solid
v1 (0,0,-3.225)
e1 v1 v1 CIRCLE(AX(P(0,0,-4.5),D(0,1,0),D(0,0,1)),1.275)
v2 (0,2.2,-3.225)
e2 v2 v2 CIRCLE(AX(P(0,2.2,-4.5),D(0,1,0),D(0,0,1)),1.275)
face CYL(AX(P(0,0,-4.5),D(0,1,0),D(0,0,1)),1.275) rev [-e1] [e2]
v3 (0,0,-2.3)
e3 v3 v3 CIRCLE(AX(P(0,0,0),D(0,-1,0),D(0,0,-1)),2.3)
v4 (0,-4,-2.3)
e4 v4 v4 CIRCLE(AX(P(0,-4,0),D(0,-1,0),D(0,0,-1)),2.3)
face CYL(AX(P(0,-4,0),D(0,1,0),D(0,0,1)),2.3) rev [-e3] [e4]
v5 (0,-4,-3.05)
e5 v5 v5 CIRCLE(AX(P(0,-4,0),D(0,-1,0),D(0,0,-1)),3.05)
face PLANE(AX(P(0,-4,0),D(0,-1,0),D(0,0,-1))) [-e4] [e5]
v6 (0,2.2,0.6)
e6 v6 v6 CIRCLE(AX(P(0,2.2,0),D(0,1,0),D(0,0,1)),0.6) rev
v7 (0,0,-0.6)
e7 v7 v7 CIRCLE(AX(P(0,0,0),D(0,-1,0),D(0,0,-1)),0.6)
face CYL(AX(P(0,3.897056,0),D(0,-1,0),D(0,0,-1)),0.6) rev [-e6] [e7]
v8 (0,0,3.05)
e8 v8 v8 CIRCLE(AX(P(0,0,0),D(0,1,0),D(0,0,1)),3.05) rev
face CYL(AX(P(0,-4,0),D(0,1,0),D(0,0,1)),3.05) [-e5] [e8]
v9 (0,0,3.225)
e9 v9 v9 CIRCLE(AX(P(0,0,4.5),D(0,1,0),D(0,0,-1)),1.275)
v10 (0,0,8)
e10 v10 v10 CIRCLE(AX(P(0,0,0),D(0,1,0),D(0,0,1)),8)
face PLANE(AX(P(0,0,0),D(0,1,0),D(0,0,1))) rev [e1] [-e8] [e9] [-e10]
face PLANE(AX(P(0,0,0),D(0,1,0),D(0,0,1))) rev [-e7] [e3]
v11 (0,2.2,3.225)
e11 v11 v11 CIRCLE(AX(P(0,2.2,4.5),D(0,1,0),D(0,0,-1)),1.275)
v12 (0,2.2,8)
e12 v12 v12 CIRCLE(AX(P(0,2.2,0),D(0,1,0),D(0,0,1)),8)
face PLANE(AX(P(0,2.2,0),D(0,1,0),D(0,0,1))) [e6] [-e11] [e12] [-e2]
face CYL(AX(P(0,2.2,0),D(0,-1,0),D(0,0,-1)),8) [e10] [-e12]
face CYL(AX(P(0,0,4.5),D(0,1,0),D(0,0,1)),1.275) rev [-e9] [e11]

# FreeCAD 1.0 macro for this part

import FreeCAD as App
import Part
import Sketcher

V = App.Vector

doc = App.newDocument("Part")
params = doc.addObject("Spreadsheet::Sheet", "Params")
for row, (alias, value) in enumerate([
    ("sketch1_diameter", "16 mm"),
    ("pad1_length", "2.2 mm"),
    ("sketch2_diameter", "2.55 mm"),
    ("pocket1_length", "2.2 mm"),
    ("sketch3_diameter", "6.1 mm"),
    ("sketch3_diameter2", "4.6 mm"),
    ("pad2_length", "4 mm"),
    ("sketch4_diameter", "1.2 mm"),
    ("pocket2_length", "2.2 mm"),
], start=1):
    params.set(f"A{row}", alias)
    params.set(f"B{row}", "=" + value)
    params.setAlias(f"B{row}", alias)

body = doc.addObject("PartDesign::Body", "Body")

sketch1 = body.newObject("Sketcher::SketchObject", "Sketch")
sketch1.AttachmentSupport = (doc.getObject("XZ_Plane"), [""])
sketch1.MapMode = "FlatFace"
sketch1.addGeometry(Part.Circle(V(0, 0, 0), V(0, 0, 1), 8), False)
sketch1.addConstraint(Sketcher.Constraint("Coincident", 0, 3, -1, 1))
sketch1.addConstraint(Sketcher.Constraint("Diameter", 0, 16.0))
sketch1.setExpression("Constraints[1]", "Params.sketch1_diameter")
pad1 = body.newObject("PartDesign::Pad", "Pad")
pad1.Profile = sketch1
pad1.setExpression("Length", "Params.pad1_length")
pad1.Reversed = True

sketch2 = body.newObject("Sketcher::SketchObject", "Sketch001")
sketch2.AttachmentSupport = (doc.getObject("XZ_Plane"), [""])
sketch2.MapMode = "FlatFace"
sketch2.AttachmentOffset = App.Placement(V(0, 0, -2.2), App.Rotation())
sketch2.addGeometry(Part.Circle(V(0, -4.5, 0), V(0, 0, 1), 1.3), False)
sketch2.addGeometry(Part.Circle(V(0, 4.5, 0), V(0, 0, 1), 1.3), False)
sketch2.addConstraint(Sketcher.Constraint("Equal", 0, 1))
sketch2.addConstraint(Sketcher.Constraint("Symmetric", 0, 3, 1, 3, -1, 1))
sketch2.addConstraint(Sketcher.Constraint("PointOnObject", 0, 3, -2))
sketch2.addConstraint(Sketcher.Constraint("Diameter", 0, 2.55))
sketch2.addConstraint(Sketcher.Constraint("DistanceY", 0, 3, 1, 3, 9.0))
sketch2.setExpression("Constraints[3]", "Params.sketch2_diameter")
pocket1 = body.newObject("PartDesign::Pocket", "Pocket")
pocket1.Profile = sketch2
pocket1.setExpression("Length", "Params.pocket1_length")
pocket1.Reversed = True

sketch3 = body.newObject("Sketcher::SketchObject", "Sketch002")
sketch3.AttachmentSupport = (doc.getObject("XZ_Plane"), [""])
sketch3.MapMode = "FlatFace"
sketch3.addGeometry(Part.Circle(V(0, 0, 0), V(0, 0, 1), 3), False)
sketch3.addGeometry(Part.Circle(V(0, 0, 0), V(0, 0, 1), 2.3), False)
sketch3.addConstraint(Sketcher.Constraint("Coincident", 0, 3, -1, 1))
sketch3.addConstraint(Sketcher.Constraint("Coincident", 1, 3, -1, 1))
sketch3.addConstraint(Sketcher.Constraint("Diameter", 0, 6.1))
sketch3.addConstraint(Sketcher.Constraint("Diameter", 1, 4.6))
sketch3.setExpression("Constraints[2]", "Params.sketch3_diameter")
sketch3.setExpression("Constraints[3]", "Params.sketch3_diameter2")
pad2 = body.newObject("PartDesign::Pad", "Pad001")
pad2.Profile = sketch3
pad2.setExpression("Length", "Params.pad2_length")

sketch4 = body.newObject("Sketcher::SketchObject", "Sketch003")
sketch4.AttachmentSupport = (doc.getObject("XZ_Plane"), [""])
sketch4.MapMode = "FlatFace"
sketch4.addGeometry(Part.Circle(V(0, 0, 0), V(0, 0, 1), 0.6), False)
sketch4.addConstraint(Sketcher.Constraint("Coincident", 0, 3, -1, 1))
sketch4.addConstraint(Sketcher.Constraint("Diameter", 0, 1.2))
sketch4.setExpression("Constraints[1]", "Params.sketch4_diameter")
pocket2 = body.newObject("PartDesign::Pocket", "Pocket001")
pocket2.Profile = sketch4
pocket2.setExpression("Length", "Params.pocket2_length")

doc.recompute()
